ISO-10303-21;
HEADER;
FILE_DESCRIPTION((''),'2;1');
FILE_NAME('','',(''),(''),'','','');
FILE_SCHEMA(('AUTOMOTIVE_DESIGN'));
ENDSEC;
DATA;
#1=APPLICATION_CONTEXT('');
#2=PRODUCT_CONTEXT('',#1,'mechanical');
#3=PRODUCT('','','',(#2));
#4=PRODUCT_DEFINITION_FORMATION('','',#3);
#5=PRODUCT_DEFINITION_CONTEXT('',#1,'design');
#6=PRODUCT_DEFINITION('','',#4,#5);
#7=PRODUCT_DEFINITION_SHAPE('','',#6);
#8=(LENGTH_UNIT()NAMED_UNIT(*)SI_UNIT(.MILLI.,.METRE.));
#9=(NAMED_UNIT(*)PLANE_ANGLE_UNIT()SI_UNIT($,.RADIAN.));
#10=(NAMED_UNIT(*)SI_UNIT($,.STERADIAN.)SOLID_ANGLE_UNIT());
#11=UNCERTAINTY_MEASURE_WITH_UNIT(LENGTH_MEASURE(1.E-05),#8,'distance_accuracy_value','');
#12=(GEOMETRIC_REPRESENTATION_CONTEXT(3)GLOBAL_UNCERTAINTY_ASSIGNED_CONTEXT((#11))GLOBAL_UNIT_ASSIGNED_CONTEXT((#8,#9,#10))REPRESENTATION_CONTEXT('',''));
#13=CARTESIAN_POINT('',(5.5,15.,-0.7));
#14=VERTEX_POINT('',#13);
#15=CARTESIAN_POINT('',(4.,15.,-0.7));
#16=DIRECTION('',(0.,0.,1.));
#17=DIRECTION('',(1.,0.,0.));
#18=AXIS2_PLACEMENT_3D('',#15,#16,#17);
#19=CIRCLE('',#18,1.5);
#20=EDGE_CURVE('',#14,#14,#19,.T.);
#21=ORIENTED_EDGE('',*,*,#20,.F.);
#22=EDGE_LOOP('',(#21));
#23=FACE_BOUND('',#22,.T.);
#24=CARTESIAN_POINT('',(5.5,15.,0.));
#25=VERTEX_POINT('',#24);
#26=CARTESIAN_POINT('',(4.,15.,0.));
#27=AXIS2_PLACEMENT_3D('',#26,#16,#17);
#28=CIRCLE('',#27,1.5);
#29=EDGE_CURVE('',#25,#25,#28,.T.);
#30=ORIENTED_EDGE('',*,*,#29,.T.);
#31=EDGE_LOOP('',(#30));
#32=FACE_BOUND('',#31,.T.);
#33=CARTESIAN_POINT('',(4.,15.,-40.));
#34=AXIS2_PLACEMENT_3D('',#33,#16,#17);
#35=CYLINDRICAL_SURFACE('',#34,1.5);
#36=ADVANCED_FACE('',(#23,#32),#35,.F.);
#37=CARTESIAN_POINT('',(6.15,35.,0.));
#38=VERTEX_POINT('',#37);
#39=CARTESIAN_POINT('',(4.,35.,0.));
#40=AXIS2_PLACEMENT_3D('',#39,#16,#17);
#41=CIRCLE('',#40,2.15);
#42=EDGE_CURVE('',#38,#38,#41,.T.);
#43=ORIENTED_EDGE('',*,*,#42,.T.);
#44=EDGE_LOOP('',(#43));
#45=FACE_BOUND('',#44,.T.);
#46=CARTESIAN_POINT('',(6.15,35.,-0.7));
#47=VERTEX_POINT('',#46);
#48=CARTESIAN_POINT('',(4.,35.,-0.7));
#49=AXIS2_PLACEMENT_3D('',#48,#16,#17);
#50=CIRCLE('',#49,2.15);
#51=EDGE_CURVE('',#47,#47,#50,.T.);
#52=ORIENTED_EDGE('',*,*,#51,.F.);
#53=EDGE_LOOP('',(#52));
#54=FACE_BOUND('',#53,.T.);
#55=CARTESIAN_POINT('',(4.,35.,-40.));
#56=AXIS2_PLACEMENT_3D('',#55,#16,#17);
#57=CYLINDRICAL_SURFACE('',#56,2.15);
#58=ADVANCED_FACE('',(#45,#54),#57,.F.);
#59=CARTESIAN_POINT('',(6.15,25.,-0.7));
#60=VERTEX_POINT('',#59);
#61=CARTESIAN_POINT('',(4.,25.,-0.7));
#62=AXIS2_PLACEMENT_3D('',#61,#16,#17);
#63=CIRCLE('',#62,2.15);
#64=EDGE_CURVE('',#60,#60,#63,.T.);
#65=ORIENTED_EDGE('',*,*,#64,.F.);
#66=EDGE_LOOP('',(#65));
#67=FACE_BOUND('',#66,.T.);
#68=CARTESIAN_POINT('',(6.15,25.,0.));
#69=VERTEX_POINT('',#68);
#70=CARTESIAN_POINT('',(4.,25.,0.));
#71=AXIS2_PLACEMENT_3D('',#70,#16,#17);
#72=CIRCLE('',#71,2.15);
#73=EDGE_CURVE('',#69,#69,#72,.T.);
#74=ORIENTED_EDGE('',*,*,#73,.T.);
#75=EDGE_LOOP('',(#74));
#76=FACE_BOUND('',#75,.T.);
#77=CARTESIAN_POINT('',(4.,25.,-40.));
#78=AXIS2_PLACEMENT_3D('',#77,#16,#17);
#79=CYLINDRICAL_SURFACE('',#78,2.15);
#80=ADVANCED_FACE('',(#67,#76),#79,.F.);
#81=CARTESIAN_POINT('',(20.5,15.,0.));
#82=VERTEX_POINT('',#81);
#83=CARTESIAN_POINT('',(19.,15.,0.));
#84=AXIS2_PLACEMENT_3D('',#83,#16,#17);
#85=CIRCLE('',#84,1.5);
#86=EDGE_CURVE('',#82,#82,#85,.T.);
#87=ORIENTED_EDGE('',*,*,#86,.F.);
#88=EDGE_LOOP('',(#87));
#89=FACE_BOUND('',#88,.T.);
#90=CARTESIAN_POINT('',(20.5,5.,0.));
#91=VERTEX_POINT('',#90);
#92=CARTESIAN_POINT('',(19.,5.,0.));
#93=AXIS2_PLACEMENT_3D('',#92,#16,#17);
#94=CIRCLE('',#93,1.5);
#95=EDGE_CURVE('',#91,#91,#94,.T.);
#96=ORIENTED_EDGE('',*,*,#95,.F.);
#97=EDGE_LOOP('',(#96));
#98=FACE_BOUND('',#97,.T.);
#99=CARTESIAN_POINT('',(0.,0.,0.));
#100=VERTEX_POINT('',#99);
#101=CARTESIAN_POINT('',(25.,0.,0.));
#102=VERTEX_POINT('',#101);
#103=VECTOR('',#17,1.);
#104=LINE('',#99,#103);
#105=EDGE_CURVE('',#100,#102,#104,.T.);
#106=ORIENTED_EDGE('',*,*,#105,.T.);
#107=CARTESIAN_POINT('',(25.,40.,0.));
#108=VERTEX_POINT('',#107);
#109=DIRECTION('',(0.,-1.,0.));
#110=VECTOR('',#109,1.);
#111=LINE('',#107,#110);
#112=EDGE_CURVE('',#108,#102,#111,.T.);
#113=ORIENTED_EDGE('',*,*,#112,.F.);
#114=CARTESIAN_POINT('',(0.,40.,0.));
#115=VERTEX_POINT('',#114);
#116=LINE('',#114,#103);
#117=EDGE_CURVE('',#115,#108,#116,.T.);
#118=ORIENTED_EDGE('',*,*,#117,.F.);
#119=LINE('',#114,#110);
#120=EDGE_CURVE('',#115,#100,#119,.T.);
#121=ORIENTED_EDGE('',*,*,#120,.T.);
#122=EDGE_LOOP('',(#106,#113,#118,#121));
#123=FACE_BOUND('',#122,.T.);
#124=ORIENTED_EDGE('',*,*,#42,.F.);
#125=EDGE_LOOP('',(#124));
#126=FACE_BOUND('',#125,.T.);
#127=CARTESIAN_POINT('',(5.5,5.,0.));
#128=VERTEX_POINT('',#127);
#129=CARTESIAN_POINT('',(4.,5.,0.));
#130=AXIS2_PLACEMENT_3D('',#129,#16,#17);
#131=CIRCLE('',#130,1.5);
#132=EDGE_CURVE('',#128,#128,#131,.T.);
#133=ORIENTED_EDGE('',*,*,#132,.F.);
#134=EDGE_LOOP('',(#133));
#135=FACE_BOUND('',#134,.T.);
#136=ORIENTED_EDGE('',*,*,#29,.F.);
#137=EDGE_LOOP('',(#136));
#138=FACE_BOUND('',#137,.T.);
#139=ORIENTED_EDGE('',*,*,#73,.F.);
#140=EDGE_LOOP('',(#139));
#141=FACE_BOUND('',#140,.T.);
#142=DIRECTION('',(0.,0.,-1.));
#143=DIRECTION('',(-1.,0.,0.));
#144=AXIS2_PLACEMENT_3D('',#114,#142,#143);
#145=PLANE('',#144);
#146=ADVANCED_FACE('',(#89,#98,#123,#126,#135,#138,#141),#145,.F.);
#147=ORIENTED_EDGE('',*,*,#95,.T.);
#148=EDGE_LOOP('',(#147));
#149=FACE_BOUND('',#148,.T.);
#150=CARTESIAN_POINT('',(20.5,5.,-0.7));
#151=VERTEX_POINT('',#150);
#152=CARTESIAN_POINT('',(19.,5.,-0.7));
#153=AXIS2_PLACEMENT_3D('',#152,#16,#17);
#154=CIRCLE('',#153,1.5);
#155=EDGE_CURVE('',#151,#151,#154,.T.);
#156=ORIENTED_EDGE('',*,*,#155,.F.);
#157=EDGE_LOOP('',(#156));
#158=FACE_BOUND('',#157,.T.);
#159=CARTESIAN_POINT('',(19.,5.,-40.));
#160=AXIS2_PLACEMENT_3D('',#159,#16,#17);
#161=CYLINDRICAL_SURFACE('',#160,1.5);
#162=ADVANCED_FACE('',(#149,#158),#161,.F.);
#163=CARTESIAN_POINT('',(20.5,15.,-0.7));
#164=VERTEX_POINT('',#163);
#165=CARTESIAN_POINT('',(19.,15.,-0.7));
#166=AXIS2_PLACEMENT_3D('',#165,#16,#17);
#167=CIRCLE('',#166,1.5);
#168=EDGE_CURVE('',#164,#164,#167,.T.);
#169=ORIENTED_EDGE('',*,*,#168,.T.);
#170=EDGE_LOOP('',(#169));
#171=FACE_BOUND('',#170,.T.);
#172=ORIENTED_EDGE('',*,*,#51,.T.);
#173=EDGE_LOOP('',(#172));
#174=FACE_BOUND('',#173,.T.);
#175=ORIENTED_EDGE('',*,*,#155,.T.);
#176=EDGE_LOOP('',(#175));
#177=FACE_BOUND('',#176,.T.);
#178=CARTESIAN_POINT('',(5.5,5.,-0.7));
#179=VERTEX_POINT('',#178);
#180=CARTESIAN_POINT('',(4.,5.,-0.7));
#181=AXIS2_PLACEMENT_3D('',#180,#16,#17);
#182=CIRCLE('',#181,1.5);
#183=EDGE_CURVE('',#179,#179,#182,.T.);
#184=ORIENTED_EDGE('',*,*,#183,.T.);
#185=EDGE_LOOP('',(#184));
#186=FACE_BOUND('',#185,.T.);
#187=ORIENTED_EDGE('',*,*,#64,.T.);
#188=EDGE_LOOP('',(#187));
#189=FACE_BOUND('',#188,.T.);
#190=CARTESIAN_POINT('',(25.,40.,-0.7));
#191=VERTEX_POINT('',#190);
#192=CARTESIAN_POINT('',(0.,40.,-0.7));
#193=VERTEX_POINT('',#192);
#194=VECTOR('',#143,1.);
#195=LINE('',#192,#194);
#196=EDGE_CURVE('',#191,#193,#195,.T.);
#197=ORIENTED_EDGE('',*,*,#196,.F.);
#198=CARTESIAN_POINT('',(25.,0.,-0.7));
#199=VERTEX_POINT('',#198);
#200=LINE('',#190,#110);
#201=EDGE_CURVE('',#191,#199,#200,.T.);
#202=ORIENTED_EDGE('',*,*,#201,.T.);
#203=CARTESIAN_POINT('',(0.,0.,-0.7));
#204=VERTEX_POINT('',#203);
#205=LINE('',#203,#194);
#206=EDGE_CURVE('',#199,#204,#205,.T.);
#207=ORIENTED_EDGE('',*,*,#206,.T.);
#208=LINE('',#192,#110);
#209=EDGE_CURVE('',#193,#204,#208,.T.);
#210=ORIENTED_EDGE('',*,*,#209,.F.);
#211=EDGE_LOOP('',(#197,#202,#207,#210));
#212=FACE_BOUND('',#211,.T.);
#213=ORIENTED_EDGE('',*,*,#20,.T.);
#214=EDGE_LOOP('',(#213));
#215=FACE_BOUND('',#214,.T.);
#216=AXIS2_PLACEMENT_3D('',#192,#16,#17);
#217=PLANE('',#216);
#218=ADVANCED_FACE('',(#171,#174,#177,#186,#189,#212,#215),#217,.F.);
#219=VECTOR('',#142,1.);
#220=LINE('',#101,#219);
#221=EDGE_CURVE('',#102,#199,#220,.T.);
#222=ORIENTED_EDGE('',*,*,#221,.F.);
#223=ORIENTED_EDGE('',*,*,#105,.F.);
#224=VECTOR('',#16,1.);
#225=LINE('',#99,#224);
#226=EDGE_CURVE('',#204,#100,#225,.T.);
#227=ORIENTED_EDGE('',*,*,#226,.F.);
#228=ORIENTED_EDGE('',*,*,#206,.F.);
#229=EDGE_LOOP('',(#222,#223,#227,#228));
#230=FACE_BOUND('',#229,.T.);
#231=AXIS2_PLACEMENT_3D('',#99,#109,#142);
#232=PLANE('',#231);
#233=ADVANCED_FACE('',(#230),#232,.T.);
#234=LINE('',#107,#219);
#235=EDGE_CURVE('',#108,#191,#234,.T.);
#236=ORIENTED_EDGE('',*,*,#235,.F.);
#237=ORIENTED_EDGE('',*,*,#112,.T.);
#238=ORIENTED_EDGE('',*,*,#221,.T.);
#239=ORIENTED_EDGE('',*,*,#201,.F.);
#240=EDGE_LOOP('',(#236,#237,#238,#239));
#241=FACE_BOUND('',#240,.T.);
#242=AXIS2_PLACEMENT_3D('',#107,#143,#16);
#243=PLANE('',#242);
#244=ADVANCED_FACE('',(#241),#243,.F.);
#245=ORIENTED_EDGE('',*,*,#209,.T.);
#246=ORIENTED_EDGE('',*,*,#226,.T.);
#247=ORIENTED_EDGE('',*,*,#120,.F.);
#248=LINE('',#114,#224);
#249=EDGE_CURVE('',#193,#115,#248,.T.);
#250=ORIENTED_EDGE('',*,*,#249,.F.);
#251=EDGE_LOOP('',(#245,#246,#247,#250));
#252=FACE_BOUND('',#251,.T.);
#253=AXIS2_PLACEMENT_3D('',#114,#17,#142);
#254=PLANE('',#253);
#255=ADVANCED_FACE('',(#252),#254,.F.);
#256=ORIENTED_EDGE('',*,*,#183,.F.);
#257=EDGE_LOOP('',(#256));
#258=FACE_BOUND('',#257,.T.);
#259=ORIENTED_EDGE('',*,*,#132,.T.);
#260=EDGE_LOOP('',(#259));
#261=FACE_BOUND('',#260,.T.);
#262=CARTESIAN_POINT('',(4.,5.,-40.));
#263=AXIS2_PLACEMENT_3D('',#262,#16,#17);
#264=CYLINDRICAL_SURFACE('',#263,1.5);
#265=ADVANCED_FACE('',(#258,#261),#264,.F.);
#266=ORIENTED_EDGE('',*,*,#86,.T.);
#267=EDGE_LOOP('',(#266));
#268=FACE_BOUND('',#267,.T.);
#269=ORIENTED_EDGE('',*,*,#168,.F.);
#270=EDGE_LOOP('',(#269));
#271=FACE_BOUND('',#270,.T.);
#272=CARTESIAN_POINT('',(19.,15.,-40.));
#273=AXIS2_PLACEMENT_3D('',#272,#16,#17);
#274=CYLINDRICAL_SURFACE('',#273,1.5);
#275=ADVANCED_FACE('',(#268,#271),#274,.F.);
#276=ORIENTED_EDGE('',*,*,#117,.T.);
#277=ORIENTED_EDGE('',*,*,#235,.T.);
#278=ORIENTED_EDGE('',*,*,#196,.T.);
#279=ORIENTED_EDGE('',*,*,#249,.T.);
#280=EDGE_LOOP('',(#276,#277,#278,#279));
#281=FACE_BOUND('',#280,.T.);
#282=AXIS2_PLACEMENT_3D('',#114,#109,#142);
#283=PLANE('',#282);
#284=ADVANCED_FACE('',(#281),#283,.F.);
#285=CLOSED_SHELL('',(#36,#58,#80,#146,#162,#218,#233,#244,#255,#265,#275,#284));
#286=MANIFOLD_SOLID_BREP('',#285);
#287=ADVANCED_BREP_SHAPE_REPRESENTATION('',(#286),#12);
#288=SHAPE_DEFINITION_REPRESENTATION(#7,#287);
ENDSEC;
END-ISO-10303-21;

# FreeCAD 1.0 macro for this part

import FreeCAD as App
import Part
import Sketcher
from FreeCAD import Vector
Q = App.Units.Quantity

doc = App.newDocument("Part")
body = doc.addObject("PartDesign::Body", "Body")

sketch1 = body.newObject("Sketcher::SketchObject", "Sketch")
sketch1.AttachmentSupport = (doc.getObject("XZ_Plane"), [""])
sketch1.MapMode = "FlatFace"
sketch1.addGeometry([
    Part.LineSegment(Vector(0, -0.7, 0), Vector(0, 0, 0)),
    Part.LineSegment(Vector(0, 0, 0), Vector(25, 0, 0)),
    Part.LineSegment(Vector(25, 0, 0), Vector(25, -0.7, 0)),
    Part.LineSegment(Vector(25, -0.7, 0), Vector(0, -0.7, 0)),
], False)
sketch1.addConstraint([
    Sketcher.Constraint("Coincident", 0, 2, 1, 1),
    Sketcher.Constraint("Coincident", 1, 2, 2, 1),
    Sketcher.Constraint("Coincident", 2, 2, 3, 1),
    Sketcher.Constraint("Coincident", 3, 2, 0, 1),
    Sketcher.Constraint("Vertical", 0),
    Sketcher.Constraint("Horizontal", 1),
    Sketcher.Constraint("Vertical", 2),
    Sketcher.Constraint("Horizontal", 3),
    Sketcher.Constraint("Coincident", 0, 2, -1, 1),
    Sketcher.Constraint("DistanceX", 1, 1, 1, 2, Q("25 mm")),
    Sketcher.Constraint("DistanceY", 0, 1, 0, 2, Q("0.7 mm")),
])
pad1 = body.newObject("PartDesign::Pad", "Pad")
pad1.Profile = sketch1
pad1.Length = 40
pad1.Reversed = True

sketch2 = body.newObject("Sketcher::SketchObject", "Sketch001")
sketch2.AttachmentSupport = (doc.getObject("XY_Plane"), [""])
sketch2.MapMode = "FlatFace"
sketch2.addGeometry([
    Part.Circle(Vector(4, 35, 0), Vector(0, 0, 1), 2.1),
    Part.Circle(Vector(4, 25, 0), Vector(0, 0, 1), 2.1),
    Part.Circle(Vector(4, 15, 0), Vector(0, 0, 1), 1.5),
    Part.Circle(Vector(4, 5, 0), Vector(0, 0, 1), 1.5),
    Part.Circle(Vector(19, 15, 0), Vector(0, 0, 1), 1.5),
    Part.Circle(Vector(19, 5, 0), Vector(0, 0, 1), 1.5),
], False)
sketch2.addConstraint([
    Sketcher.Constraint("Equal", 0, 1),
    Sketcher.Constraint("Equal", 2, 3),
    Sketcher.Constraint("Equal", 3, 4),
    Sketcher.Constraint("Equal", 4, 5),
    Sketcher.Constraint("Horizontal", 2, 3, 4, 3),
    Sketcher.Constraint("Horizontal", 3, 3, 5, 3),
    Sketcher.Constraint("Vertical", 0, 3, 1, 3),
    Sketcher.Constraint("Vertical", 1, 3, 2, 3),
    Sketcher.Constraint("Vertical", 2, 3, 3, 3),
    Sketcher.Constraint("Vertical", 4, 3, 5, 3),
    Sketcher.Constraint("Diameter", 2, Q("3 mm")),
    Sketcher.Constraint("Diameter", 0, Q("4.3 mm")),
    Sketcher.Constraint("DistanceX", -1, 1, 0, 3, Q("4 mm")),
    Sketcher.Constraint("DistanceY", -1, 1, 0, 3, Q("35 mm")),
    Sketcher.Constraint("DistanceY", -1, 1, 1, 3, Q("25 mm")),
    Sketcher.Constraint("DistanceY", -1, 1, 2, 3, Q("15 mm")),
    Sketcher.Constraint("DistanceY", -1, 1, 3, 3, Q("5 mm")),
    Sketcher.Constraint("DistanceX", -1, 1, 4, 3, Q("19 mm")),
])
pocket1 = body.newObject("PartDesign::Pocket", "Pocket")
pocket1.Profile = sketch2
pocket1.Length = 40

doc.recompute()
